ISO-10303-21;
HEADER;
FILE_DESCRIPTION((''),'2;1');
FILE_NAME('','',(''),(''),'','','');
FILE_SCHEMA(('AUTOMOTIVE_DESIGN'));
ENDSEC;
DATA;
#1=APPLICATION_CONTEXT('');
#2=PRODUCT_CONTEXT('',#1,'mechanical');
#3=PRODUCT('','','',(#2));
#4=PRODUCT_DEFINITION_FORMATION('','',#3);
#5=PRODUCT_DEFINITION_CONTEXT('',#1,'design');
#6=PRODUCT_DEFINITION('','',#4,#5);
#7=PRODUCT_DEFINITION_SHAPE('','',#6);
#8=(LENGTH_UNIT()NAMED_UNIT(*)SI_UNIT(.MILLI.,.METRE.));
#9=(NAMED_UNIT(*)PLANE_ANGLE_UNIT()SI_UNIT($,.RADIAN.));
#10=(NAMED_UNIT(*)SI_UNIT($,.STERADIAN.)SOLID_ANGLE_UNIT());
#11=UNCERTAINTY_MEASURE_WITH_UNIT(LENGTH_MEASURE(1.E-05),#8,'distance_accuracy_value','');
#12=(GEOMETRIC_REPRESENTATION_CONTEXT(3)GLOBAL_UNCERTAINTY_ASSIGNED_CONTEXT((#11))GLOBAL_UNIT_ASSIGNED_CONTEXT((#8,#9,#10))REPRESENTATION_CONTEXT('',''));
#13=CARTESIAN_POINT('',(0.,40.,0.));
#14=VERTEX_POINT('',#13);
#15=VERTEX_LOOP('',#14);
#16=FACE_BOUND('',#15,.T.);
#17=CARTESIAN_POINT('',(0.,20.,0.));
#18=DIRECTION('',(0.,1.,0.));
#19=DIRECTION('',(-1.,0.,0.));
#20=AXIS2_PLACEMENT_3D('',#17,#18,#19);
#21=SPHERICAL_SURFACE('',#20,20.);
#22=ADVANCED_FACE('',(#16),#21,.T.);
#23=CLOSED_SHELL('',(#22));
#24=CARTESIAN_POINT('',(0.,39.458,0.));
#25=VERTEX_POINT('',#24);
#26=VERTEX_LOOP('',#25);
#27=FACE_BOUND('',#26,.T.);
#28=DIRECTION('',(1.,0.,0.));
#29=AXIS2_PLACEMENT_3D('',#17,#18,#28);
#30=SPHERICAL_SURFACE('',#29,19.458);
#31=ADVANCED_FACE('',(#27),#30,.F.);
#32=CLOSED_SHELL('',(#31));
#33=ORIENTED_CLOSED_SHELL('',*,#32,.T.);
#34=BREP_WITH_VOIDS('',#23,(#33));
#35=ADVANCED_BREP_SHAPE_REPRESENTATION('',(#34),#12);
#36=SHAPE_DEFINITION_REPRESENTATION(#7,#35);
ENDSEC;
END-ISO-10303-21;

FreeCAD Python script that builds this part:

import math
import FreeCAD as App
import Part
import Sketcher
Q = App.Units.Quantity

doc = App.newDocument("Part")
body = doc.addObject("PartDesign::Body", "Body")

sketch1 = body.newObject("Sketcher::SketchObject", "Sketch")
sketch1.AttachmentSupport = (doc.getObject("XY_Plane"), [""])
sketch1.MapMode = "FlatFace"
sketch1.addGeometry(Part.LineSegment(App.Vector(0, 40, 0), App.Vector(0, 39.5, 0)), False)
sketch1.addGeometry(Part.ArcOfCircle(Part.Circle(App.Vector(0, 20, 0), App.Vector(0, 0, 1), 19.5), math.radians(-90), math.radians(90)), False)
sketch1.addGeometry(Part.LineSegment(App.Vector(0, 0.5, 0), App.Vector(0, 0, 0)), False)
sketch1.addGeometry(Part.ArcOfCircle(Part.Circle(App.Vector(0, 20, 0), App.Vector(0, 0, 1), 20), math.radians(-90), math.radians(90)), False)
sketch1.addConstraint(Sketcher.Constraint("Coincident", 0, 2, 1, 2))
sketch1.addConstraint(Sketcher.Constraint("Coincident", 1, 1, 2, 1))
sketch1.addConstraint(Sketcher.Constraint("Coincident", 2, 2, 3, 1))
sketch1.addConstraint(Sketcher.Constraint("Coincident", 3, 2, 0, 1))
sketch1.addConstraint(Sketcher.Constraint("Vertical", 0))
sketch1.addConstraint(Sketcher.Constraint("Vertical", 2))
sketch1.addConstraint(Sketcher.Constraint("Coincident", 2, 2, -1, 1))
sketch1.addConstraint(Sketcher.Constraint("Coincident", 3, 3, 1, 3))
sketch1.addConstraint(Sketcher.Constraint("PointOnObject", 1, 3, -2))
sketch1.addConstraint(Sketcher.Constraint("PointOnObject", 0, 2, -2))
sketch1.addConstraint(Sketcher.Constraint("Radius", 3, Q("20 mm")))
sketch1.addConstraint(Sketcher.Constraint("Radius", 1, Q("19.458 mm")))
revolution = body.newObject("PartDesign::Revolution", "Revolution")
revolution.Profile = sketch1
revolution.ReferenceAxis = (sketch1, ["V_Axis"])
revolution.Angle = 360

doc.recompute()
